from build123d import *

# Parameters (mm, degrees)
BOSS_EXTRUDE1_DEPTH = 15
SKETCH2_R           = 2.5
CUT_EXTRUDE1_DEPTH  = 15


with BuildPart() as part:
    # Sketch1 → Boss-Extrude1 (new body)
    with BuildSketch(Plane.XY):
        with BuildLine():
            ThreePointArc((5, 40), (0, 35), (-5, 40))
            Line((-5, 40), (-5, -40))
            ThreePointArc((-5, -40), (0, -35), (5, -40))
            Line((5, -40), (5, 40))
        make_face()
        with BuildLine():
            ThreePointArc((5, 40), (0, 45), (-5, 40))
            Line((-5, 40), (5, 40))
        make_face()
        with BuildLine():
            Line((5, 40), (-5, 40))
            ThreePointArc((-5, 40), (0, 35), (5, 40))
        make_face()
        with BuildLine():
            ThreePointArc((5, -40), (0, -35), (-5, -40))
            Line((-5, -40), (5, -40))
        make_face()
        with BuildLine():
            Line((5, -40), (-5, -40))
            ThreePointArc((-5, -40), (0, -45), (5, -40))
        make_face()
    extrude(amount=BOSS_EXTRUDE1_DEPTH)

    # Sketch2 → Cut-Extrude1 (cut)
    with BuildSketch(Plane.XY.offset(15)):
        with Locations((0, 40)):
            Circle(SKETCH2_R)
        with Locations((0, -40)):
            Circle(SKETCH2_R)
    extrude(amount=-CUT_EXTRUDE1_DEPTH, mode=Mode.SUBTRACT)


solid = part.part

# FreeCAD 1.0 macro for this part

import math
import FreeCAD as App
import Part
import Sketcher

V = App.Vector

doc = App.newDocument("Part")
body = doc.addObject("PartDesign::Body", "Body")

# Sketch on XY plane
sketch1 = doc.addObject("Sketcher::SketchObject", "Sketch")
body.addObject(sketch1)
sketch1.AttachmentSupport = (doc.XY_Plane, [""])
sketch1.MapMode = "FlatFace"
sketch1.addGeometry([
    Part.ArcOfCircle(Part.Circle(V(0, -40, 0), V(0, 0, 1), 5), math.radians(180), math.radians(360)),
    Part.LineSegment(V(5, -40, 0), V(5, 40, 0)),
    Part.ArcOfCircle(Part.Circle(V(0, 40, 0), V(0, 0, 1), 5), math.radians(0), math.radians(180)),
    Part.LineSegment(V(-5, 40, 0), V(-5, -40, 0)),
], False)
sketch1.addConstraint([
    Sketcher.Constraint("Tangent", 0, 2, 1, 1),
    Sketcher.Constraint("Tangent", 1, 2, 2, 1),
    Sketcher.Constraint("Tangent", 2, 2, 3, 1),
    Sketcher.Constraint("Tangent", 3, 2, 0, 1),
    Sketcher.Constraint("Vertical", 1),
    Sketcher.Constraint("Vertical", 3),
    Sketcher.Constraint("Symmetric", 0, 3, 2, 3, -1, 1),
    Sketcher.Constraint("Radius", 0, 5.0),
    Sketcher.Constraint("DistanceY", 1, 1, 1, 2, 80.0),
])
pad1 = doc.addObject("PartDesign::Pad", "Pad")
body.addObject(pad1)
pad1.Profile = sketch1
pad1.Length = 15

# Sketch on XY plane
sketch2 = doc.addObject("Sketcher::SketchObject", "Sketch001")
body.addObject(sketch2)
sketch2.AttachmentSupport = (doc.XY_Plane, [""])
sketch2.MapMode = "FlatFace"
sketch2.AttachmentOffset = App.Placement(V(0, 0, 15), App.Rotation())
sketch2.addGeometry([
    Part.Circle(V(0, 40, 0), V(0, 0, 1), 2.5),
    Part.Circle(V(0, -40, 0), V(0, 0, 1), 2.5),
], False)
sketch2.addConstraint([
    Sketcher.Constraint("Equal", 0, 1),
    Sketcher.Constraint("Symmetric", 0, 3, 1, 3, -1, 1),
    Sketcher.Constraint("PointOnObject", 0, 3, -2),
    Sketcher.Constraint("Diameter", 0, 5.0),
    Sketcher.Constraint("DistanceY", -1, 1, 0, 3, 40.0),
])
pocket1 = doc.addObject("PartDesign::Pocket", "Pocket")
body.addObject(pocket1)
pocket1.Profile = sketch2
pocket1.Length = 15

doc.recompute()
